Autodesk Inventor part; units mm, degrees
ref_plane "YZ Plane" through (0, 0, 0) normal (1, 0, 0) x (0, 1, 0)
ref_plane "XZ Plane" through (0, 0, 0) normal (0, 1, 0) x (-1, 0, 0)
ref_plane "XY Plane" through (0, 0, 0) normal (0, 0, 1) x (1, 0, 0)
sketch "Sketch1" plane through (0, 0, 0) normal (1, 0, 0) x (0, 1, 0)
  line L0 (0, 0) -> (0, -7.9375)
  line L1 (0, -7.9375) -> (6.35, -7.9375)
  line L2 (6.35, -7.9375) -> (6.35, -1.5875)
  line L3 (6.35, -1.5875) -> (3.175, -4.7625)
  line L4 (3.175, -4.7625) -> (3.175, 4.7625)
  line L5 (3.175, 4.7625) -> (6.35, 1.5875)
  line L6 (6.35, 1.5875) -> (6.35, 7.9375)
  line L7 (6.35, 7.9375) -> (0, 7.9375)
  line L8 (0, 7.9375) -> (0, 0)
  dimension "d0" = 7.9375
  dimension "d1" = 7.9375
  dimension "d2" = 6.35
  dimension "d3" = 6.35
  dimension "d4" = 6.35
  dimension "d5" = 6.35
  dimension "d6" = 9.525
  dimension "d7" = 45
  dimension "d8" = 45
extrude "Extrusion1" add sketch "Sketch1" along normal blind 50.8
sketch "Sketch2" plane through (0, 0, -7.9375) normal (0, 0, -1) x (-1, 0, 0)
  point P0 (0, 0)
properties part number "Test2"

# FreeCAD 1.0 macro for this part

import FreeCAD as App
import Part
import Sketcher
from FreeCAD import Vector
Q = App.Units.Quantity


def add_polygon(sketch, points):
    """Adds a closed chain of lines whose ends are joined by coincident constraints."""
    first, n = sketch.GeometryCount, len(points)
    for a, b in zip(points, points[1:] + points[:1]):
        sketch.addGeometry(Part.LineSegment(App.Vector(*a, 0), App.Vector(*b, 0)), False)
    for i in range(n):
        sketch.addConstraint(Sketcher.Constraint("Coincident", first + i, 2, first + (i + 1) % n, 1))

doc = App.newDocument("Part")
body = doc.addObject("PartDesign::Body", "Body")

sketch1 = doc.addObject("Sketcher::SketchObject", "Sketch")
body.addObject(sketch1)
sketch1.AttachmentSupport = (doc.YZ_Plane, [""])
sketch1.MapMode = "FlatFace"
add_polygon(sketch1, [(0, 7.9), (0, -7.9), (6.3, -7.9), (6.3, -1.6), (3.2, -4.8), (3.2, 4.8), (6.3, 1.6), (6.3, 7.9)])
sketch1.addConstraint([
    Sketcher.Constraint("Vertical", 0),
    Sketcher.Constraint("Horizontal", 1),
    Sketcher.Constraint("Vertical", 2),
    Sketcher.Constraint("Vertical", 4),
    Sketcher.Constraint("Vertical", 6),
    Sketcher.Constraint("Horizontal", 7),
    Sketcher.Constraint("Symmetric", 0, 2, 7, 2, -1, 1),
    Sketcher.Constraint("Symmetric", 2, 2, 5, 2, -1),
    Sketcher.Constraint("Perpendicular", 3, 5),
    Sketcher.Constraint("Equal", 7, 2),
    Sketcher.Constraint("Equal", 3, 5),
    Sketcher.Constraint("DistanceX", 1, 1, 1, 2, Q("0.25 in")),
    Sketcher.Constraint("DistanceY", 4, 1, 4, 2, Q("0.375 in")),
    Sketcher.Constraint("DistanceY", 2, 2, 4, 2, Q("0.25 in")),
])
pad1 = doc.addObject("PartDesign::Pad", "Pad")
body.addObject(pad1)
pad1.Profile = sketch1
pad1.Length = Q("2 in")

doc.recompute()
